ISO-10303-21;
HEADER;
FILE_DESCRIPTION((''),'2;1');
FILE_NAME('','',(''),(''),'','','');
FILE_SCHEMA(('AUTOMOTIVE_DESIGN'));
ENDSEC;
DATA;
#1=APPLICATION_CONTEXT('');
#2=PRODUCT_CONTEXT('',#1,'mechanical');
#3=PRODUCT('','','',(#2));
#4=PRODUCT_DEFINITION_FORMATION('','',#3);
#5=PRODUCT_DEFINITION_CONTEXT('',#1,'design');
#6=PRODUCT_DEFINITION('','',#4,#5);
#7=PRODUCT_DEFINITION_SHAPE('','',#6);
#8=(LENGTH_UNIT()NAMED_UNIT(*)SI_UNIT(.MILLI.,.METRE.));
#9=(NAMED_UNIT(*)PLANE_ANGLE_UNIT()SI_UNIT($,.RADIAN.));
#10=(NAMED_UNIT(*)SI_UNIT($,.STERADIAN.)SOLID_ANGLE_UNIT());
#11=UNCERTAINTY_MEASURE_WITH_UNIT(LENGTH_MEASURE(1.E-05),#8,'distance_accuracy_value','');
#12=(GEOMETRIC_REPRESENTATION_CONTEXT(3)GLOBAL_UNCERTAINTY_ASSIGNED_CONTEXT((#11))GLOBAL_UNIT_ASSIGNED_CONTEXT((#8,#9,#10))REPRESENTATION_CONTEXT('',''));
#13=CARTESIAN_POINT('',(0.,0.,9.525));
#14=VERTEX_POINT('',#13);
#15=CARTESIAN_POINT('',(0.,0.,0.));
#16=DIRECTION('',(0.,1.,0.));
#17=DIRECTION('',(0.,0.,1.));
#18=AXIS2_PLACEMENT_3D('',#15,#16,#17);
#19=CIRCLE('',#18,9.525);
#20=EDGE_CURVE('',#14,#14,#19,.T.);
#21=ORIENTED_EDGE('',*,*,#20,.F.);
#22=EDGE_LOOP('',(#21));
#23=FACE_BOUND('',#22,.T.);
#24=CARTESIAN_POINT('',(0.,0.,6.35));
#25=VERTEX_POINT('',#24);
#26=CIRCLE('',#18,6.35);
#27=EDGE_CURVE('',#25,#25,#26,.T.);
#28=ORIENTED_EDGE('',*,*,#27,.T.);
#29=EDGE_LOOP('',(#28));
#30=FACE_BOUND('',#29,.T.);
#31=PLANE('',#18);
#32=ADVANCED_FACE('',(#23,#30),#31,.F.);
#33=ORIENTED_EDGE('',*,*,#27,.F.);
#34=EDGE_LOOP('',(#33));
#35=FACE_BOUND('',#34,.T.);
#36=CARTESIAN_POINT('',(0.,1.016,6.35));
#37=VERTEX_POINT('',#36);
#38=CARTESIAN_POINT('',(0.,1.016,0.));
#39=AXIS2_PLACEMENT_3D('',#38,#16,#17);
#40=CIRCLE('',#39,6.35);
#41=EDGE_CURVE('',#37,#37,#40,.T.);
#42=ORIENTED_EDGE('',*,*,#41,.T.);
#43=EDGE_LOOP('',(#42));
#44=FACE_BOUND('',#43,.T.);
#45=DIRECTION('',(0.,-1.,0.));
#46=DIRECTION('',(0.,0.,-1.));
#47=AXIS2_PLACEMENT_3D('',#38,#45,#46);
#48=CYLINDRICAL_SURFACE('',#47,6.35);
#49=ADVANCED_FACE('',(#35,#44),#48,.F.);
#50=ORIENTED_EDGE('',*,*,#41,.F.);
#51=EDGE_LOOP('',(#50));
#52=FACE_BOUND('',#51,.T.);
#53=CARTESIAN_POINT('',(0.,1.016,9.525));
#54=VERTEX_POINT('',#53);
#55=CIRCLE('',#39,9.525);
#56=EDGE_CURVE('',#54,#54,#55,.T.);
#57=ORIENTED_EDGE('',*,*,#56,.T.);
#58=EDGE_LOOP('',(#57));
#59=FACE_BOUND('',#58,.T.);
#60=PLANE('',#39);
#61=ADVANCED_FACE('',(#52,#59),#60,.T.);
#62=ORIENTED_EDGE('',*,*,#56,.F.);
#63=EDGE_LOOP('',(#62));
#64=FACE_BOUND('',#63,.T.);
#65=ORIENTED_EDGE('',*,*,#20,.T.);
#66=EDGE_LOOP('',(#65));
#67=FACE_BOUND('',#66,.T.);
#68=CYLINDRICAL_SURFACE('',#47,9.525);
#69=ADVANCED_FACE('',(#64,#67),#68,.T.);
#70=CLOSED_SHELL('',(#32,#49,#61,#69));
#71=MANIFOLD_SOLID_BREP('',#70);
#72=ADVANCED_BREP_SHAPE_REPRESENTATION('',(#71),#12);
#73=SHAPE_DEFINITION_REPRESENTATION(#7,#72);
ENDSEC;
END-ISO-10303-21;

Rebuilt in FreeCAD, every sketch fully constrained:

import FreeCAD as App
import Part
import Sketcher

V = App.Vector
Q = App.Units.Quantity

doc = App.newDocument("Part")
body = doc.addObject("PartDesign::Body", "Body")

sketch1 = body.newObject("Sketcher::SketchObject", "Sketch")
sketch1.AttachmentSupport = (doc.getObject("XZ_Plane"), [""])
sketch1.MapMode = "FlatFace"
sketch1.addGeometry(Part.Circle(V(0, 0, 0), V(0, 0, 1), 9.525), False)
sketch1.addGeometry(Part.Circle(V(0, 0, 0), V(0, 0, 1), 6.35), False)
sketch1.addConstraint(Sketcher.Constraint("Coincident", 0, 3, -1, 1))
sketch1.addConstraint(Sketcher.Constraint("Coincident", 1, 3, -1, 1))
sketch1.addConstraint(Sketcher.Constraint("Diameter", 1, Q("0.5 in")))
sketch1.addConstraint(Sketcher.Constraint("Diameter", 0, Q("0.75 in")))
pad1 = body.newObject("PartDesign::Pad", "Pad")
pad1.Profile = sketch1
pad1.Length = Q("0.04 in")
pad1.Reversed = True

doc.recompute()
